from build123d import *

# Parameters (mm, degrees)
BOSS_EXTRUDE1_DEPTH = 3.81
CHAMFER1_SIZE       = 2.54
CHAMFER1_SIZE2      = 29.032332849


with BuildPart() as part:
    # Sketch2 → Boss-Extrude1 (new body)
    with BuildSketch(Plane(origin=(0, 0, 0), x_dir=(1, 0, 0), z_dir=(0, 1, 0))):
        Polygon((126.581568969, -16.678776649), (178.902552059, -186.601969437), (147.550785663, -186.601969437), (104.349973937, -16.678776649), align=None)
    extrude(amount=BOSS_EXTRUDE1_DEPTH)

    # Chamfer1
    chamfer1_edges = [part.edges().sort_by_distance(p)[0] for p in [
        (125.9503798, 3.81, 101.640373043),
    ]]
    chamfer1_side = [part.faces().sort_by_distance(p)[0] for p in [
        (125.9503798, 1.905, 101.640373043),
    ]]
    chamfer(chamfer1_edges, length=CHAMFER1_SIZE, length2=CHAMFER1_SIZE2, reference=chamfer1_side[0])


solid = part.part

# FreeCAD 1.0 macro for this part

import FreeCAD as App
import Part
import Sketcher

V = App.Vector
Q = App.Units.Quantity


def edges_at(feature, points):
    """Names of the edges that pass closest to the given points."""
    edges = feature.Shape.Edges
    near = lambda p: min(range(len(edges)), key=lambda i: edges[i].distToShape(Part.Vertex(*p))[0])
    return sorted({f"Edge{near(p) + 1}" for p in points})

doc = App.newDocument("Part")
body = doc.addObject("PartDesign::Body", "Body")

# Sketch on XZ plane
sketch1 = body.newObject("Sketcher::SketchObject", "Sketch")
sketch1.AttachmentSupport = (doc.getObject("XZ_Plane"), [""])
sketch1.MapMode = "FlatFace"
sketch1.addGeometry([
    Part.LineSegment(V(179, 187, 0), V(127, 17, 0)),
    Part.LineSegment(V(127, 17, 0), V(104, 17, 0)),
    Part.LineSegment(V(104, 17, 0), V(148, 187, 0)),
    Part.LineSegment(V(148, 187, 0), V(179, 187, 0)),
], False)
sketch1.addConstraint([
    Sketcher.Constraint("Coincident", 0, 2, 1, 1),
    Sketcher.Constraint("Coincident", 1, 2, 2, 1),
    Sketcher.Constraint("Coincident", 2, 2, 3, 1),
    Sketcher.Constraint("Coincident", 3, 2, 0, 1),
    Sketcher.Constraint("Horizontal", 1),
    Sketcher.Constraint("Horizontal", 3),
    Sketcher.Constraint("Distance", 2, 175.328838),
    Sketcher.Constraint("DistanceX", 1, 2, 1, 1, 22.231595),
    Sketcher.Constraint("DistanceX", 3, 1, 3, 2, 31.351766),
    Sketcher.Constraint("DistanceX", -1, 1, 0, 2, 126.581569),
    Sketcher.Constraint("DistanceY", -1, 1, 2, 2, 186.601969),
    Sketcher.Constraint("DistanceX", 1, 2, 2, 2, 43.200812),
])
pad1 = body.newObject("PartDesign::Pad", "Pad")
pad1.Profile = sketch1
pad1.Length = Q("0.15 in")
pad1.Reversed = True
doc.recompute()

chamfer = body.newObject("PartDesign::Chamfer", "Chamfer")
chamfer.Base = (pad1, edges_at(pad1, [(125.95, 3.81, 101.64)]))
chamfer.ChamferType = "Two distances"
chamfer.Size = Q("0.1 in")
chamfer.Size2 = 29.032333

doc.recompute()
